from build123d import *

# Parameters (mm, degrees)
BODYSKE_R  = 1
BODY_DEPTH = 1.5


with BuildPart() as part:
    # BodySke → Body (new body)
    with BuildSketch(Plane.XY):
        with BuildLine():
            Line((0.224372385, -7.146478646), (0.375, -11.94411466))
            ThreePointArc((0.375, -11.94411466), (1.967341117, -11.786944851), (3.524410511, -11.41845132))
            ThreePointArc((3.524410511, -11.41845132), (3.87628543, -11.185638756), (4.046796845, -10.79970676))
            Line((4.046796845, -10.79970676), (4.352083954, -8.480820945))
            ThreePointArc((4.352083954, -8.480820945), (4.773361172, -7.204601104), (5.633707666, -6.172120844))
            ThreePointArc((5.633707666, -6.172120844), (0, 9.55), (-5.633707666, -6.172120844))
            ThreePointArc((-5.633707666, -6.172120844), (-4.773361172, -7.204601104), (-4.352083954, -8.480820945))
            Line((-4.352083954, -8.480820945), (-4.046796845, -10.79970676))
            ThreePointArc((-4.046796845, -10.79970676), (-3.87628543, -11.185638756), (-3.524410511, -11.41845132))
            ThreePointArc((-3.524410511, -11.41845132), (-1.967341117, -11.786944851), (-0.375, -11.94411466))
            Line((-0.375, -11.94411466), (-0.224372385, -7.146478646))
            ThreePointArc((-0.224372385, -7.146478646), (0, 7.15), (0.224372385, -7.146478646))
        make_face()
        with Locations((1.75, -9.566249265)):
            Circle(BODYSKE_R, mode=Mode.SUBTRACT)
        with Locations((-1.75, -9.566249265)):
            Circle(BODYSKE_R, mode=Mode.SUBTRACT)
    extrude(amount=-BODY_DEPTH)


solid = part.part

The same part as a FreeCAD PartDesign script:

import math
import FreeCAD as App
import Part
import Sketcher

V = App.Vector
Q = App.Units.Quantity

doc = App.newDocument("Part")
body = doc.addObject("PartDesign::Body", "Body")

sketch1 = body.newObject("Sketcher::SketchObject", "Sketch")
sketch1.AttachmentSupport = (doc.getObject("XY_Plane"), [""])
sketch1.MapMode = "FlatFace"
sketch1.addGeometry([
    Part.LineSegment(V(0.224372, -7.146479, 0), V(0.375, -11.944115, 0)),
    Part.ArcOfCircle(Part.Circle(V(0, 0, 0), V(0, 0, 1), 11.95), math.radians(-88.20172), math.radians(-72.846675)),
    Part.ArcOfCircle(Part.Circle(V(3.303213, -10.701812, 0), V(0, 0, 1), 0.75), math.radians(-72.846675), math.radians(-7.5)),
    Part.LineSegment(V(4.046797, -10.799707, 0), V(4.352084, -8.480821, 0)),
    Part.ArcOfCircle(Part.Circle(V(7.918012, -8.950284, 0), V(0, 0, 1), 3.596698), math.radians(129.428251), math.radians(172.5)),
    Part.ArcOfCircle(Part.Circle(V(0, 0.679576, 0), V(0, 0, 1), 8.870424), math.radians(-50.571749), math.radians(230.571749)),
    Part.ArcOfCircle(Part.Circle(V(-7.918012, -8.950284, 0), V(0, 0, 1), 3.596698), math.radians(7.5), math.radians(50.571749)),
    Part.LineSegment(V(-4.352084, -8.480821, 0), V(-4.046797, -10.799707, 0)),
    Part.ArcOfCircle(Part.Circle(V(-3.303213, -10.701812, 0), V(0, 0, 1), 0.75), math.radians(-172.5), math.radians(-107.153325)),
    Part.ArcOfCircle(Part.Circle(V(0, 0, 0), V(0, 0, 1), 11.95), math.radians(-107.153325), math.radians(-91.79828)),
    Part.LineSegment(V(-0.375, -11.944115, 0), V(-0.224372, -7.146479, 0)),
    Part.ArcOfCircle(Part.Circle(V(0, 0, 0), V(0, 0, 1), 7.15), math.radians(-88.20172), math.radians(268.20172)),
    Part.Circle(V(-1.75, -9.566249, 0), V(0, 0, 1), 1),
    Part.Circle(V(1.75, -9.566249, 0), V(0, 0, 1), 1),
], False)
sketch1.addConstraint([
    Sketcher.Constraint("Coincident", 0, 2, 1, 1),
    Sketcher.Constraint("Tangent", 1, 2, 2, 1),
    Sketcher.Constraint("Tangent", 2, 2, 3, 1),
    Sketcher.Constraint("Tangent", 3, 2, 4, 2),
    Sketcher.Constraint("Tangent", 4, 1, 5, 1),
    Sketcher.Constraint("Tangent", 5, 2, 6, 2),
    Sketcher.Constraint("Tangent", 6, 1, 7, 1),
    Sketcher.Constraint("Tangent", 7, 2, 8, 1),
    Sketcher.Constraint("Tangent", 8, 2, 9, 1),
    Sketcher.Constraint("Coincident", 9, 2, 10, 1),
    Sketcher.Constraint("Coincident", 10, 2, 11, 2),
    Sketcher.Constraint("Coincident", 11, 1, 0, 1),
    Sketcher.Constraint("Coincident", 1, 3, -1, 1),
    Sketcher.Constraint("Coincident", 9, 3, -1, 1),
    Sketcher.Constraint("Coincident", 11, 3, -1, 1),
    Sketcher.Constraint("Equal", 4, 6),
    Sketcher.Constraint("Equal", 2, 8),
    Sketcher.Constraint("Equal", 1, 9),
    Sketcher.Constraint("Equal", 12, 13),
    Sketcher.Constraint("Symmetric", 4, 3, 6, 3, -2),
    Sketcher.Constraint("Symmetric", 12, 3, 13, 3, -2),
    Sketcher.Constraint("Horizontal", 2, 3, 8, 3),
    Sketcher.Constraint("Horizontal", 0, 2, 9, 2),
    Sketcher.Constraint("Horizontal", 10, 2, 11, 1),
    Sketcher.Constraint("Diameter", 12, 2.0),
    Sketcher.Constraint("Radius", 1, 11.95),
    Sketcher.Constraint("Radius", 2, 0.75),
    Sketcher.Constraint("Radius", 11, 7.15),
    Sketcher.Constraint("Angle", 3, Q("82.5 deg")),
    Sketcher.Constraint("Radius", 4, 3.596698),
    Sketcher.Constraint("DistanceX", 12, 3, 13, 3, 3.5),
    Sketcher.Constraint("DistanceX", 9, 2, 0, 2, 0.75),
    Sketcher.Constraint("Radius", 5, 8.870424),
    Sketcher.Constraint("DistanceX", 2, 3, 4, 3, 4.614799),
    Sketcher.Constraint("DistanceY", 3, 2, 4, 1, 2.3087),
    Sketcher.Constraint("DistanceY", 12, 3, -1, 1, 9.566249),
    Sketcher.Constraint("DistanceY", 10, 2, -1, 1, 7.146479),
])
pad1 = body.newObject("PartDesign::Pad", "Pad")
pad1.Profile = sketch1
pad1.Length = 1.5
pad1.Reversed = True

doc.recompute()
